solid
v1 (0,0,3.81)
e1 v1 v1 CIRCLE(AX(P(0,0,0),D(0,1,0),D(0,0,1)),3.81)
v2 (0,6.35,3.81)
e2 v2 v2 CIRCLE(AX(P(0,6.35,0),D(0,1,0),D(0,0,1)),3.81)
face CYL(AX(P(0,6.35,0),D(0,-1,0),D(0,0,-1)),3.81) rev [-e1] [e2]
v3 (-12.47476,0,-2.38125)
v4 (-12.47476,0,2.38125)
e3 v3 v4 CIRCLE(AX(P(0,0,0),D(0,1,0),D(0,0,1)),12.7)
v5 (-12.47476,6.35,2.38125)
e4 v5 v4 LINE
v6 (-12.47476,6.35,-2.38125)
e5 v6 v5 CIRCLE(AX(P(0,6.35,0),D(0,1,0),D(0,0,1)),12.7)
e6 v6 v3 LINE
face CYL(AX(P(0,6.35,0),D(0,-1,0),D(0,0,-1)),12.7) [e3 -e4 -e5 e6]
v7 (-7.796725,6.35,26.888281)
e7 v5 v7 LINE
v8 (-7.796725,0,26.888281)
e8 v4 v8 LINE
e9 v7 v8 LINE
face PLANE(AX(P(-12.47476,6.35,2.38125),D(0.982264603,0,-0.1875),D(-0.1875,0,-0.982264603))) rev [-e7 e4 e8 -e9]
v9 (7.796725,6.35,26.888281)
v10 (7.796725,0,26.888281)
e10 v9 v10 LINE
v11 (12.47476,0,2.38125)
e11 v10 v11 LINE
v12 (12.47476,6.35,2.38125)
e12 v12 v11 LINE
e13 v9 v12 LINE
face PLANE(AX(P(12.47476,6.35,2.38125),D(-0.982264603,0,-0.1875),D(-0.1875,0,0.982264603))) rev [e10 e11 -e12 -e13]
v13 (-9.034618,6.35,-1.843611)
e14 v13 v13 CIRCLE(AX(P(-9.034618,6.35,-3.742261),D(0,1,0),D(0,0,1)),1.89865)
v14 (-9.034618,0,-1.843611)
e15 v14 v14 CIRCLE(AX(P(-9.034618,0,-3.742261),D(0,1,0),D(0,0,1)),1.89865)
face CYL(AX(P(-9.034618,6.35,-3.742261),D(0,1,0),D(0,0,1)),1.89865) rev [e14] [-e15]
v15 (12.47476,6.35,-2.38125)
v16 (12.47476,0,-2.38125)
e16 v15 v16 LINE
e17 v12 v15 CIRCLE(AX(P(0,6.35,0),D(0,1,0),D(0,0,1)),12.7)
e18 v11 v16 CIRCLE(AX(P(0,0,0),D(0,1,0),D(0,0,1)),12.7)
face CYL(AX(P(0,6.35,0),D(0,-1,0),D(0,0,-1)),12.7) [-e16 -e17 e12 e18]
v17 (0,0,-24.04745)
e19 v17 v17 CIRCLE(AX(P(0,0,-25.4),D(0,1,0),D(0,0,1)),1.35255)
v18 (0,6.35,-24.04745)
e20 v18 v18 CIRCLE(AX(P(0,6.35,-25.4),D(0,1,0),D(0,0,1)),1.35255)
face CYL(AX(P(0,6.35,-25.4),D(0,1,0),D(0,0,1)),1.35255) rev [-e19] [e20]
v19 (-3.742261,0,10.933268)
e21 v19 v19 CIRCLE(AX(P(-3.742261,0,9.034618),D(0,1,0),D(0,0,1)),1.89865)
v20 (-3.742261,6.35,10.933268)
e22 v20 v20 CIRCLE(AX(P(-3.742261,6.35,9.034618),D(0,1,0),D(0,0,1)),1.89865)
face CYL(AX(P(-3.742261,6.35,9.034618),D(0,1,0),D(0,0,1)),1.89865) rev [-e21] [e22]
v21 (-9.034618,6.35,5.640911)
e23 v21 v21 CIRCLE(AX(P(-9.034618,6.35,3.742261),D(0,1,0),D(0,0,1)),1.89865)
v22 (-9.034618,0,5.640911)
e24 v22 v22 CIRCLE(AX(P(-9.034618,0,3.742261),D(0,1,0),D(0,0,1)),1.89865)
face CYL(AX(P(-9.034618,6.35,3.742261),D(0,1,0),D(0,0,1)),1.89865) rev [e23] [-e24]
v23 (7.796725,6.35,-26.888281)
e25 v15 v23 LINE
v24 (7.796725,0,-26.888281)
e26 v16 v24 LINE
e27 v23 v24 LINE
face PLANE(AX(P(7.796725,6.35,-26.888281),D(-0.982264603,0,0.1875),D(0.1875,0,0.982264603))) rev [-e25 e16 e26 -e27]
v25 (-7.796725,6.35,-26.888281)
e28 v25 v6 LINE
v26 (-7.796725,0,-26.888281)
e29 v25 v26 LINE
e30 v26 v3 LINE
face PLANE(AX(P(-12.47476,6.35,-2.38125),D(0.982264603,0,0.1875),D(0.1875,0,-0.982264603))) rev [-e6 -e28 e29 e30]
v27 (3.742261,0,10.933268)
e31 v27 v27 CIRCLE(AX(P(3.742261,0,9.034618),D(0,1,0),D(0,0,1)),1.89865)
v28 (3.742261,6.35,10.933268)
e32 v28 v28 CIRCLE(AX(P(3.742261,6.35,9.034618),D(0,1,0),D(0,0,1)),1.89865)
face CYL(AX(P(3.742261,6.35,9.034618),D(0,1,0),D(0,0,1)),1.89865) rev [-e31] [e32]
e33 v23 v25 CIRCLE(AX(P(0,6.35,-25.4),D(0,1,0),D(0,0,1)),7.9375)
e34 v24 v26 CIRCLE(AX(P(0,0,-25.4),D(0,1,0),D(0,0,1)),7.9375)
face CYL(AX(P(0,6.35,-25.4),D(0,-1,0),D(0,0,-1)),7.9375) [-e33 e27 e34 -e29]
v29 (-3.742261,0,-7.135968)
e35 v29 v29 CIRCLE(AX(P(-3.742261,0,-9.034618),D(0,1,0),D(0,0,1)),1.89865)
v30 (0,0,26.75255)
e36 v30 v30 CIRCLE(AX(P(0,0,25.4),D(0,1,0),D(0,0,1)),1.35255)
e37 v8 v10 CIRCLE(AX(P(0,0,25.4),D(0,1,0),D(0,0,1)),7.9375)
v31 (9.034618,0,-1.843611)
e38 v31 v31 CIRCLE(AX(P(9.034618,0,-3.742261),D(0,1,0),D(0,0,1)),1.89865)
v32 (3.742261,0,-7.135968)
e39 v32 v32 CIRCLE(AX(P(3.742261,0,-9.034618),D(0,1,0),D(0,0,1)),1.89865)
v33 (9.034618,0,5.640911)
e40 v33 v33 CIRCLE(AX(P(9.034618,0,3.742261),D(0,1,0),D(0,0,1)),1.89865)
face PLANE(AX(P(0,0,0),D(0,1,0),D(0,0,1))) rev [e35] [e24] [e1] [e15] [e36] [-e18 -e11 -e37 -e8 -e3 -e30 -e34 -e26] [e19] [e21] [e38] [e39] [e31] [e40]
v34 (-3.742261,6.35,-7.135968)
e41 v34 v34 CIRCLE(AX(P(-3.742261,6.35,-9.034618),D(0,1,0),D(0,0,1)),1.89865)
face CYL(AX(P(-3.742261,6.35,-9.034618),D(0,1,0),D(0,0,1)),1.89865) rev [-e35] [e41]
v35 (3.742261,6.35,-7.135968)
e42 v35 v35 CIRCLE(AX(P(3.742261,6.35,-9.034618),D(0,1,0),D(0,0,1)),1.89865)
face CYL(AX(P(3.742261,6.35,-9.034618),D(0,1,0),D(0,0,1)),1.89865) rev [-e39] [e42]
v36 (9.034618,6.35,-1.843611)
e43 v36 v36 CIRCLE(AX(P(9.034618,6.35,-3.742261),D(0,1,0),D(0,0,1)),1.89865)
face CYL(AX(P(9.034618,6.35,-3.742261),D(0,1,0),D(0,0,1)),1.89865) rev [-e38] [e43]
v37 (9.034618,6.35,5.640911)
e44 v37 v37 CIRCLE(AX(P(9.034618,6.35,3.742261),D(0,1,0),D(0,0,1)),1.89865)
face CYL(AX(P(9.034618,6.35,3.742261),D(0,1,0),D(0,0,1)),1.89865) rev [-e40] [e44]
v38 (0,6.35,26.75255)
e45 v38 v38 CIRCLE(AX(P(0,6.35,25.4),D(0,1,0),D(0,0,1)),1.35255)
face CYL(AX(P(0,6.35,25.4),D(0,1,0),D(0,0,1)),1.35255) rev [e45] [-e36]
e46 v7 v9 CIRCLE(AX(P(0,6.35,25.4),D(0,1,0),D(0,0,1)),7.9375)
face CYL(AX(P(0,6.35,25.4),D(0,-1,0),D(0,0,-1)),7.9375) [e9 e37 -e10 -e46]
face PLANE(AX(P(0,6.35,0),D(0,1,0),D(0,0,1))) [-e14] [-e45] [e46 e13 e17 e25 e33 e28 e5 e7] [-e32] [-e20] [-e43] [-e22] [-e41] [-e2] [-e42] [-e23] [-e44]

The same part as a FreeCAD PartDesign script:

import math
import FreeCAD as App
import Part
import Sketcher

V = App.Vector
Q = App.Units.Quantity

doc = App.newDocument("Part")
body = doc.addObject("PartDesign::Body", "Body")

# Sketch on XZ plane
sketch1 = doc.addObject("Sketcher::SketchObject", "Sketch")
body.addObject(sketch1)
sketch1.AttachmentSupport = (doc.XZ_Plane, [""])
sketch1.MapMode = "FlatFace"
sketch1.addGeometry(Part.LineSegment(V(-7.8, -26.9, 0), V(-12.5, -2.4, 0)), False)
sketch1.addGeometry(Part.ArcOfCircle(Part.Circle(V(0, 0, 0), V(0, 0, 1), 12.7), math.radians(169), math.radians(191)), False)
sketch1.addGeometry(Part.LineSegment(V(-12.5, 2.4, 0), V(-7.8, 26.9, 0)), False)
sketch1.addGeometry(Part.ArcOfCircle(Part.Circle(V(0, 25.4, 0), V(0, 0, 1), 7.9), math.radians(11), math.radians(169)), False)
sketch1.addGeometry(Part.LineSegment(V(7.8, 26.9, 0), V(12.5, 2.4, 0)), False)
sketch1.addGeometry(Part.ArcOfCircle(Part.Circle(V(0, 0, 0), V(0, 0, 1), 12.7), math.radians(-11), math.radians(11)), False)
sketch1.addGeometry(Part.LineSegment(V(12.5, -2.4, 0), V(7.8, -26.9, 0)), False)
sketch1.addGeometry(Part.ArcOfCircle(Part.Circle(V(0, -25.4, 0), V(0, 0, 1), 7.9), math.radians(-169), math.radians(-11)), False)
sketch1.addGeometry(Part.Circle(V(0, 0, 0), V(0, 0, 1), 3.8), False)
sketch1.addConstraint(Sketcher.Constraint("Tangent", 0, 2, 1, 2))
sketch1.addConstraint(Sketcher.Constraint("Tangent", 1, 1, 2, 1))
sketch1.addConstraint(Sketcher.Constraint("Tangent", 2, 2, 3, 2))
sketch1.addConstraint(Sketcher.Constraint("Tangent", 3, 1, 4, 1))
sketch1.addConstraint(Sketcher.Constraint("Tangent", 4, 2, 5, 2))
sketch1.addConstraint(Sketcher.Constraint("Tangent", 5, 1, 6, 1))
sketch1.addConstraint(Sketcher.Constraint("Tangent", 6, 2, 7, 2))
sketch1.addConstraint(Sketcher.Constraint("Tangent", 7, 1, 0, 1))
sketch1.addConstraint(Sketcher.Constraint("Coincident", 1, 3, -1, 1))
sketch1.addConstraint(Sketcher.Constraint("Coincident", 5, 3, -1, 1))
sketch1.addConstraint(Sketcher.Constraint("Coincident", 8, 3, -1, 1))
sketch1.addConstraint(Sketcher.Constraint("Equal", 1, 5))
sketch1.addConstraint(Sketcher.Constraint("Equal", 3, 7))
sketch1.addConstraint(Sketcher.Constraint("Symmetric", 3, 3, 7, 3, -1, 1))
sketch1.addConstraint(Sketcher.Constraint("PointOnObject", 3, 3, -2))
sketch1.addConstraint(Sketcher.Constraint("Diameter", 8, Q("0.3 in")))
sketch1.addConstraint(Sketcher.Constraint("Radius", 1, Q("0.5 in")))
sketch1.addConstraint(Sketcher.Constraint("DistanceY", -1, 1, 3, 3, Q("1 in")))
sketch1.addConstraint(Sketcher.Constraint("Radius", 3, Q("0.3125 in")))
pad1 = doc.addObject("PartDesign::Pad", "Pad")
body.addObject(pad1)
pad1.Profile = sketch1
pad1.Length = Q("0.25 in")
pad1.Reversed = True

# Sketch on XZ plane
sketch2 = doc.addObject("Sketcher::SketchObject", "Sketch001")
body.addObject(sketch2)
sketch2.AttachmentSupport = (doc.XZ_Plane, [""])
sketch2.MapMode = "FlatFace"
sketch2.AttachmentOffset = App.Placement(V(0, 0, -0.25 * 25.4), App.Rotation())
sketch2.addGeometry(Part.Circle(V(0, 25.4, 0), V(0, 0, 1), 1.4), False)
sketch2.addGeometry(Part.Circle(V(0, -25.4, 0), V(0, 0, 1), 1.4), False)
sketch2.addConstraint(Sketcher.Constraint("Equal", 0, 1))
sketch2.addConstraint(Sketcher.Constraint("Symmetric", 0, 3, 1, 3, -1, 1))
sketch2.addConstraint(Sketcher.Constraint("PointOnObject", 0, 3, -2))
sketch2.addConstraint(Sketcher.Constraint("DistanceY", -1, 1, 0, 3, Q("1 in")))
sketch2.addConstraint(Sketcher.Constraint("Diameter", 0, Q("0.1065 in")))
doc.recompute()
hole = doc.addObject("PartDesign::Hole", "Hole")
body.addObject(hole)
hole.Profile = sketch2
hole.ThreadType = "None"
hole.Diameter = Q("0.1065 in")
hole.DepthType = "ThroughAll"
hole.Reversed = True

# Sketch on YZ plane
sketch3 = doc.addObject("Sketcher::SketchObject", "Sketch002")
body.addObject(sketch3)
sketch3.AttachmentSupport = (doc.YZ_Plane, [""])
sketch3.MapMode = "FlatFace"
sketch3.AttachmentOffset = App.Placement(V(0, 0, -3.742261), App.Rotation())
sketch3.addGeometry(Part.LineSegment(V(-4.2, -9, 0), V(6.3, -9, 0)), False)
sketch3.addGeometry(Part.LineSegment(V(6.3, -9, 0), V(6.3, -7.1, 0)), False)
sketch3.addGeometry(Part.LineSegment(V(6.3, -7.1, 0), V(-3, -7.1, 0)), False)
sketch3.addGeometry(Part.LineSegment(V(-3, -7.1, 0), V(-4.2, -9, 0)), False)
sketch3.addGeometry(Part.LineSegment(V(6.3, -9, 0), V(-4.2, -9, 0)), True)  # axis
sketch3.addConstraint(Sketcher.Constraint("Coincident", 0, 2, 1, 1))
sketch3.addConstraint(Sketcher.Constraint("Coincident", 1, 2, 2, 1))
sketch3.addConstraint(Sketcher.Constraint("Coincident", 2, 2, 3, 1))
sketch3.addConstraint(Sketcher.Constraint("Coincident", 3, 2, 0, 1))
sketch3.addConstraint(Sketcher.Constraint("Horizontal", 0))
sketch3.addConstraint(Sketcher.Constraint("Vertical", 1))
sketch3.addConstraint(Sketcher.Constraint("Horizontal", 2))
sketch3.addConstraint(Sketcher.Constraint("Horizontal", 4))
sketch3.addConstraint(Sketcher.Constraint("Coincident", 4, 1, 0, 2))
sketch3.addConstraint(Sketcher.Constraint("Equal", 0, 4))
sketch3.addConstraint(Sketcher.Constraint("Angle", 3, Q("-121 deg")))
sketch3.addConstraint(Sketcher.Constraint("DistanceX", 2, 2, 2, 1, Q("0.37 in")))
sketch3.addConstraint(Sketcher.Constraint("DistanceX", -1, 1, 0, 2, Q("0.25 in")))
sketch3.addConstraint(Sketcher.Constraint("DistanceY", 1, 1, 1, 2, Q("1.89865 mm")))
sketch3.addConstraint(Sketcher.Constraint("DistanceY", 0, 2, -1, 1, Q("9.034618 mm")))
groove = doc.addObject("PartDesign::Groove", "Groove")
body.addObject(groove)
groove.Profile = sketch3
groove.ReferenceAxis = (sketch3, ["Axis0"])
groove.Angle = 360
doc.recompute()

linearpattern = doc.addObject("PartDesign::LinearPattern", "LinearPattern")
body.addObject(linearpattern)
linearpattern.Originals = [groove]
linearpattern.Direction = (doc.X_Axis, [""])
linearpattern.Mode = "offset"
linearpattern.Offset = 7.484523
linearpattern.Occurrences = 2
body.Tip = linearpattern
doc.recompute()

datumline = doc.addObject("PartDesign::Line", "DatumLine")
body.addObject(datumline)
datumline.Placement = App.Placement(V(0, 0, 0), App.Rotation(V(0, 0, 1), V(0.382683432, 0, 0.923879533)))
linearpattern2 = doc.addObject("PartDesign::LinearPattern", "LinearPattern001")
body.addObject(linearpattern2)
linearpattern2.Originals = [groove]
linearpattern2.Direction = (datumline, [""])
linearpattern2.Mode = "offset"
linearpattern2.Offset = Q("0.77 in")
linearpattern2.Occurrences = 2
body.Tip = linearpattern2
doc.recompute()

linearpattern3 = doc.addObject("PartDesign::LinearPattern", "LinearPattern002")
body.addObject(linearpattern3)
linearpattern3.Originals = [groove]
linearpattern3.Direction = (doc.Z_Axis, [""])
linearpattern3.Mode = "offset"
linearpattern3.Offset = 18.069236
linearpattern3.Occurrences = 2
body.Tip = linearpattern3
doc.recompute()

polarpattern = doc.addObject("PartDesign::PolarPattern", "PolarPattern")
body.addObject(polarpattern)
polarpattern.Originals = [groove]
polarpattern.Axis = (doc.Y_Axis, [""])
polarpattern.Angle = 90
polarpattern.Occurrences = 2
body.Tip = polarpattern

# Sketch on XY plane
sketch4 = doc.addObject("Sketcher::SketchObject", "Sketch003")
body.addObject(sketch4)
sketch4.AttachmentSupport = (doc.XY_Plane, [""])
sketch4.MapMode = "FlatFace"
sketch4.AttachmentOffset = App.Placement(V(0, 0, -3.742261), App.Rotation())
sketch4.addGeometry(Part.LineSegment(V(-9, -4.2, 0), V(-9, 6.3, 0)), False)
sketch4.addGeometry(Part.LineSegment(V(-9, 6.3, 0), V(-7.1, 6.3, 0)), False)
sketch4.addGeometry(Part.LineSegment(V(-7.1, 6.3, 0), V(-7.1, -3, 0)), False)
sketch4.addGeometry(Part.LineSegment(V(-7.1, -3, 0), V(-9, -4.2, 0)), False)
sketch4.addGeometry(Part.LineSegment(V(-9, 6.3, 0), V(-9, -4.2, 0)), True)  # axis
sketch4.addConstraint(Sketcher.Constraint("Coincident", 0, 2, 1, 1))
sketch4.addConstraint(Sketcher.Constraint("Coincident", 1, 2, 2, 1))
sketch4.addConstraint(Sketcher.Constraint("Coincident", 2, 2, 3, 1))
sketch4.addConstraint(Sketcher.Constraint("Coincident", 3, 2, 0, 1))
sketch4.addConstraint(Sketcher.Constraint("Vertical", 0))
sketch4.addConstraint(Sketcher.Constraint("Horizontal", 1))
sketch4.addConstraint(Sketcher.Constraint("Vertical", 2))
sketch4.addConstraint(Sketcher.Constraint("Vertical", 4))
sketch4.addConstraint(Sketcher.Constraint("Coincident", 4, 1, 0, 2))
sketch4.addConstraint(Sketcher.Constraint("Equal", 0, 4))
sketch4.addConstraint(Sketcher.Constraint("Angle", 3, Q("-149 deg")))
sketch4.addConstraint(Sketcher.Constraint("DistanceY", 2, 2, 2, 1, Q("0.37 in")))
sketch4.addConstraint(Sketcher.Constraint("DistanceY", -1, 1, 0, 2, Q("0.25 in")))
sketch4.addConstraint(Sketcher.Constraint("DistanceX", 1, 1, 1, 2, Q("1.89865 mm")))
sketch4.addConstraint(Sketcher.Constraint("DistanceX", 0, 2, -1, 1, Q("9.034618 mm")))
groove2 = doc.addObject("PartDesign::Groove", "Groove001")
body.addObject(groove2)
groove2.Profile = sketch4
groove2.ReferenceAxis = (sketch4, ["Axis0"])
groove2.Angle = 360

# Sketch on XY plane
sketch5 = doc.addObject("Sketcher::SketchObject", "Sketch004")
body.addObject(sketch5)
sketch5.AttachmentSupport = (doc.XY_Plane, [""])
sketch5.MapMode = "FlatFace"
sketch5.AttachmentOffset = App.Placement(V(0, 0, -3.742261), App.Rotation())
sketch5.addGeometry(Part.LineSegment(V(9, -4.2, 0), V(9, 6.3, 0)), False)
sketch5.addGeometry(Part.LineSegment(V(9, 6.3, 0), V(10.9, 6.3, 0)), False)
sketch5.addGeometry(Part.LineSegment(V(10.9, 6.3, 0), V(10.9, -3, 0)), False)
sketch5.addGeometry(Part.LineSegment(V(10.9, -3, 0), V(9, -4.2, 0)), False)
sketch5.addGeometry(Part.LineSegment(V(9, 6.3, 0), V(9, -4.2, 0)), True)  # axis
sketch5.addConstraint(Sketcher.Constraint("Coincident", 0, 2, 1, 1))
sketch5.addConstraint(Sketcher.Constraint("Coincident", 1, 2, 2, 1))
sketch5.addConstraint(Sketcher.Constraint("Coincident", 2, 2, 3, 1))
sketch5.addConstraint(Sketcher.Constraint("Coincident", 3, 2, 0, 1))
sketch5.addConstraint(Sketcher.Constraint("Vertical", 0))
sketch5.addConstraint(Sketcher.Constraint("Horizontal", 1))
sketch5.addConstraint(Sketcher.Constraint("Vertical", 2))
sketch5.addConstraint(Sketcher.Constraint("Vertical", 4))
sketch5.addConstraint(Sketcher.Constraint("Coincident", 4, 1, 0, 2))
sketch5.addConstraint(Sketcher.Constraint("Equal", 0, 4))
sketch5.addConstraint(Sketcher.Constraint("Angle", 3, Q("-149 deg")))
sketch5.addConstraint(Sketcher.Constraint("DistanceY", 2, 2, 2, 1, Q("0.37 in")))
sketch5.addConstraint(Sketcher.Constraint("DistanceY", -1, 1, 0, 2, Q("0.25 in")))
sketch5.addConstraint(Sketcher.Constraint("DistanceX", 1, 1, 1, 2, Q("1.89865 mm")))
sketch5.addConstraint(Sketcher.Constraint("DistanceX", -1, 1, 0, 2, Q("9.034618 mm")))
groove3 = doc.addObject("PartDesign::Groove", "Groove002")
body.addObject(groove3)
groove3.Profile = sketch5
groove3.ReferenceAxis = (sketch5, ["Axis0"])
groove3.Angle = 360

# Sketch on XY plane
sketch6 = doc.addObject("Sketcher::SketchObject", "Sketch005")
body.addObject(sketch6)
sketch6.AttachmentSupport = (doc.XY_Plane, [""])
sketch6.MapMode = "FlatFace"
sketch6.AttachmentOffset = App.Placement(V(0, 0, 3.742261), App.Rotation())
sketch6.addGeometry(Part.LineSegment(V(9, -4.2, 0), V(9, 6.3, 0)), False)
sketch6.addGeometry(Part.LineSegment(V(9, 6.3, 0), V(10.9, 6.3, 0)), False)
sketch6.addGeometry(Part.LineSegment(V(10.9, 6.3, 0), V(10.9, -3, 0)), False)
sketch6.addGeometry(Part.LineSegment(V(10.9, -3, 0), V(9, -4.2, 0)), False)
sketch6.addGeometry(Part.LineSegment(V(9, 6.3, 0), V(9, -4.2, 0)), True)  # axis
sketch6.addConstraint(Sketcher.Constraint("Coincident", 0, 2, 1, 1))
sketch6.addConstraint(Sketcher.Constraint("Coincident", 1, 2, 2, 1))
sketch6.addConstraint(Sketcher.Constraint("Coincident", 2, 2, 3, 1))
sketch6.addConstraint(Sketcher.Constraint("Coincident", 3, 2, 0, 1))
sketch6.addConstraint(Sketcher.Constraint("Vertical", 0))
sketch6.addConstraint(Sketcher.Constraint("Horizontal", 1))
sketch6.addConstraint(Sketcher.Constraint("Vertical", 2))
sketch6.addConstraint(Sketcher.Constraint("Vertical", 4))
sketch6.addConstraint(Sketcher.Constraint("Coincident", 4, 1, 0, 2))
sketch6.addConstraint(Sketcher.Constraint("Equal", 0, 4))
sketch6.addConstraint(Sketcher.Constraint("Angle", 3, Q("-149 deg")))
sketch6.addConstraint(Sketcher.Constraint("DistanceY", 2, 2, 2, 1, Q("0.37 in")))
sketch6.addConstraint(Sketcher.Constraint("DistanceY", -1, 1, 0, 2, Q("0.25 in")))
sketch6.addConstraint(Sketcher.Constraint("DistanceX", 1, 1, 1, 2, Q("1.89865 mm")))
sketch6.addConstraint(Sketcher.Constraint("DistanceX", -1, 1, 0, 2, Q("9.034618 mm")))
groove4 = doc.addObject("PartDesign::Groove", "Groove003")
body.addObject(groove4)
groove4.Profile = sketch6
groove4.ReferenceAxis = (sketch6, ["Axis0"])
groove4.Angle = 360

doc.recompute()
